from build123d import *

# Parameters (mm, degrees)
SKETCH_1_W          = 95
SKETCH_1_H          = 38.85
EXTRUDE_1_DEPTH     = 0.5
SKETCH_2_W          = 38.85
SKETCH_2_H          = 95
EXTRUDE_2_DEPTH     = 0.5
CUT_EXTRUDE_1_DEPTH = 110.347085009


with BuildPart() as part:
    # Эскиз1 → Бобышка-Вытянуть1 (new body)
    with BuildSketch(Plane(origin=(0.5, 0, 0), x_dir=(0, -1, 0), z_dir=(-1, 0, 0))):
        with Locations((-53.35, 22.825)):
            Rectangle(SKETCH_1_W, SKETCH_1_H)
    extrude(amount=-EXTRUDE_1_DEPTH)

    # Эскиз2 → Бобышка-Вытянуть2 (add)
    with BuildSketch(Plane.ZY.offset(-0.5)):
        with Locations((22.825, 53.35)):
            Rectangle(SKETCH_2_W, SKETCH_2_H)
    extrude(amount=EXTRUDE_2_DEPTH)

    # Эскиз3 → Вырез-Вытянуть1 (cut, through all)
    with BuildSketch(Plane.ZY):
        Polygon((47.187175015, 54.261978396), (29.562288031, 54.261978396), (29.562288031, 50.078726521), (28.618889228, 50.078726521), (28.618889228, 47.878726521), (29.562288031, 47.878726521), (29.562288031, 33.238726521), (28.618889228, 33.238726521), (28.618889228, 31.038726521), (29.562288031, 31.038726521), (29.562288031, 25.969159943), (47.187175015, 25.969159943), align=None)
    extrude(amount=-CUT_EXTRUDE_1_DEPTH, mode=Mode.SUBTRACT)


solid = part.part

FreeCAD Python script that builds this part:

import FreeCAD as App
import Part
import Sketcher


def add_polygon(sketch, points):
    """Adds a closed chain of lines whose ends are joined by coincident constraints."""
    first, n = sketch.GeometryCount, len(points)
    for a, b in zip(points, points[1:] + points[:1]):
        sketch.addGeometry(Part.LineSegment(App.Vector(*a, 0), App.Vector(*b, 0)), False)
    for i in range(n):
        sketch.addConstraint(Sketcher.Constraint("Coincident", first + i, 2, first + (i + 1) % n, 1))

doc = App.newDocument("Part")
body = doc.addObject("PartDesign::Body", "Body")

sketch1 = doc.addObject("Sketcher::SketchObject", "Sketch")
body.addObject(sketch1)
sketch1.AttachmentSupport = (doc.YZ_Plane, [""])
sketch1.MapMode = "FlatFace"
sketch1.AttachmentOffset = App.Placement(App.Vector(0, 0, 0.5), App.Rotation())
add_polygon(sketch1, [(101, 42), (101, 3), (6, 3), (6, 42)])
sketch1.addConstraint([
    Sketcher.Constraint("Vertical", 0),
    Sketcher.Constraint("Horizontal", 1),
    Sketcher.Constraint("Vertical", 2),
    Sketcher.Constraint("Horizontal", 3),
    Sketcher.Constraint("DistanceX", 1, 2, 1, 1, 95.0),
    Sketcher.Constraint("DistanceY", 0, 2, 0, 1, 38.85),
    Sketcher.Constraint("DistanceY", -1, 1, 0, 2, 3.4),
    Sketcher.Constraint("DistanceX", -1, 1, 0, 2, 100.85),
])
pad1 = doc.addObject("PartDesign::Pad", "Pad")
body.addObject(pad1)
pad1.Profile = sketch1
pad1.Length = 0.5

sketch2 = doc.addObject("Sketcher::SketchObject", "Sketch001")
body.addObject(sketch2)
sketch2.AttachmentSupport = (doc.YZ_Plane, [""])
sketch2.MapMode = "FlatFace"
sketch2.AttachmentOffset = App.Placement(App.Vector(0, 0, 0.5), App.Rotation())
add_polygon(sketch2, [(101, 3), (6, 3), (6, 42), (101, 42)])
sketch2.addConstraint([
    Sketcher.Constraint("Horizontal", 0),
    Sketcher.Constraint("Vertical", 1),
    Sketcher.Constraint("Horizontal", 2),
    Sketcher.Constraint("Vertical", 3),
    Sketcher.Constraint("DistanceX", 0, 2, 0, 1, 95.0),
    Sketcher.Constraint("DistanceY", 1, 1, 1, 2, 38.85),
    Sketcher.Constraint("DistanceY", -1, 1, 0, 2, 3.4),
    Sketcher.Constraint("DistanceX", -1, 1, 0, 2, 5.85),
])
pad2 = doc.addObject("PartDesign::Pad", "Pad001")
body.addObject(pad2)
pad2.Profile = sketch2
pad2.Length = 0.5
pad2.Reversed = True

sketch3 = doc.addObject("Sketcher::SketchObject", "Sketch002")
body.addObject(sketch3)
sketch3.AttachmentSupport = (doc.YZ_Plane, [""])
sketch3.MapMode = "FlatFace"
add_polygon(sketch3, [(54.3, 47.2), (54.3, 29.6), (50.1, 29.6), (50.1, 28.6), (47.9, 28.6), (47.9, 29.6), (33.2, 29.6), (33.2, 28.6), (31, 28.6), (31, 29.6), (26, 29.6), (26, 47.2)])
sketch3.addConstraint([
    Sketcher.Constraint("Vertical", 0),
    Sketcher.Constraint("Horizontal", 1),
    Sketcher.Constraint("Vertical", 2),
    Sketcher.Constraint("Horizontal", 3),
    Sketcher.Constraint("Vertical", 4),
    Sketcher.Constraint("Horizontal", 5),
    Sketcher.Constraint("Vertical", 6),
    Sketcher.Constraint("Horizontal", 7),
    Sketcher.Constraint("Vertical", 8),
    Sketcher.Constraint("Horizontal", 9),
    Sketcher.Constraint("Vertical", 10),
    Sketcher.Constraint("Horizontal", 11),
    Sketcher.Constraint("Horizontal", 1, 2, 4, 2),
    Sketcher.Constraint("Horizontal", 3, 2, 6, 2),
    Sketcher.Constraint("Horizontal", 5, 2, 8, 2),
    Sketcher.Constraint("Equal", 3, 7),
    Sketcher.Constraint("DistanceX", 3, 2, 3, 1, 2.2),
    Sketcher.Constraint("DistanceX", 5, 2, 5, 1, 14.64),
    Sketcher.Constraint("DistanceY", 2, 2, 2, 1, 0.943399),
    Sketcher.Constraint("DistanceX", 1, 2, 1, 1, 4.183252),
    Sketcher.Constraint("DistanceX", 11, 1, 11, 2, 28.292818),
    Sketcher.Constraint("DistanceY", 0, 2, 0, 1, 17.624887),
    Sketcher.Constraint("DistanceX", -1, 1, 0, 2, 54.261978),
    Sketcher.Constraint("DistanceY", -1, 1, 0, 2, 29.562288),
])
pocket1 = doc.addObject("PartDesign::Pocket", "Pocket")
body.addObject(pocket1)
pocket1.Profile = sketch3
pocket1.Type = "ThroughAll"
pocket1.Reversed = True

doc.recompute()
